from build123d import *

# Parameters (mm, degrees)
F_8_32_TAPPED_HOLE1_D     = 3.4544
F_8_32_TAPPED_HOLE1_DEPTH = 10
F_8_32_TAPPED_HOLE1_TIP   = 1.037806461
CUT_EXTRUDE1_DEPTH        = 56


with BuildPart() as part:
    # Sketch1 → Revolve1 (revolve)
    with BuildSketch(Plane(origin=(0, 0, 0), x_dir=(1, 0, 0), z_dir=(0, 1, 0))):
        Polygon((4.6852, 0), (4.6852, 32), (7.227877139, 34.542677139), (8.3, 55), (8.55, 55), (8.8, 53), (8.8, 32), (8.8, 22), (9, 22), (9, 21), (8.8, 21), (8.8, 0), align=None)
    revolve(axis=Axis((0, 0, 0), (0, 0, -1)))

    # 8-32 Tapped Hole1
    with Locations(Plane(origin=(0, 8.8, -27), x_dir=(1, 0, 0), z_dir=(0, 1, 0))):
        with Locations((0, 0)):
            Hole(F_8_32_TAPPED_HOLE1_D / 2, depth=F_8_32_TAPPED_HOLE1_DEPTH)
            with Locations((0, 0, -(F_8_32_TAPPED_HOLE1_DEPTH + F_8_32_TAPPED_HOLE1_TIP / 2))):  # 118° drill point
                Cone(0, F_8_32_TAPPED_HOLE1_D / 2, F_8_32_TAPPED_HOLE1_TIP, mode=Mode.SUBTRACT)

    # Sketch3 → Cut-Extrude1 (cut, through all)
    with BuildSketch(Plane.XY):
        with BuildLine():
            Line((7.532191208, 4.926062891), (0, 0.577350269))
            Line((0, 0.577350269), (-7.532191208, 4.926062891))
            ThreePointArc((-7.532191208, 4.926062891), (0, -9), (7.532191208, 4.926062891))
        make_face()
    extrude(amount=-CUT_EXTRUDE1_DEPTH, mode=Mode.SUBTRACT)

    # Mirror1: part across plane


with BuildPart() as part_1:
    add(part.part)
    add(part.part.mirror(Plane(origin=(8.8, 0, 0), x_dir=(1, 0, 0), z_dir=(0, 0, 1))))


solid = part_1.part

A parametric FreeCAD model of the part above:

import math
import FreeCAD as App
import Part
import Sketcher

V = App.Vector
Q = App.Units.Quantity

doc = App.newDocument("Part")
body = doc.addObject("PartDesign::Body", "Body")

sketch1 = doc.addObject("Sketcher::SketchObject", "Sketch")
body.addObject(sketch1)
sketch1.AttachmentSupport = (doc.XZ_Plane, [""])
sketch1.MapMode = "FlatFace"
sketch1.addGeometry([
    Part.LineSegment(V(4.6852, -32, 0), V(4.6852, 0, 0)),
    Part.LineSegment(V(4.6852, 0, 0), V(8.8, 0, 0)),
    Part.LineSegment(V(8.8, 0, 0), V(8.8, -21, 0)),
    Part.LineSegment(V(8.8, -21, 0), V(9, -21, 0)),
    Part.LineSegment(V(9, -21, 0), V(9, -22, 0)),
    Part.LineSegment(V(9, -22, 0), V(8.8, -22, 0)),
    Part.LineSegment(V(8.8, -22, 0), V(8.8, -53, 0)),
    Part.LineSegment(V(8.8, -53, 0), V(8.55, -55, 0)),
    Part.LineSegment(V(8.55, -55, 0), V(8.3, -55, 0)),
    Part.LineSegment(V(8.3, -55, 0), V(7.227877, -34.542677, 0)),
    Part.LineSegment(V(7.227877, -34.542677, 0), V(4.6852, -32, 0)),
], False)
sketch1.addConstraint([
    Sketcher.Constraint("Coincident", 0, 2, 1, 1),
    Sketcher.Constraint("Coincident", 1, 2, 2, 1),
    Sketcher.Constraint("Coincident", 2, 2, 3, 1),
    Sketcher.Constraint("Coincident", 3, 2, 4, 1),
    Sketcher.Constraint("Coincident", 4, 2, 5, 1),
    Sketcher.Constraint("Coincident", 5, 2, 6, 1),
    Sketcher.Constraint("Coincident", 6, 2, 7, 1),
    Sketcher.Constraint("Coincident", 7, 2, 8, 1),
    Sketcher.Constraint("Coincident", 8, 2, 9, 1),
    Sketcher.Constraint("Coincident", 9, 2, 10, 1),
    Sketcher.Constraint("Coincident", 10, 2, 0, 1),
    Sketcher.Constraint("Vertical", 0),
    Sketcher.Constraint("Horizontal", 1),
    Sketcher.Constraint("Vertical", 2),
    Sketcher.Constraint("Horizontal", 3),
    Sketcher.Constraint("Vertical", 4),
    Sketcher.Constraint("Horizontal", 5),
    Sketcher.Constraint("Vertical", 6),
    Sketcher.Constraint("Horizontal", 8),
    Sketcher.Constraint("PointOnObject", 0, 2, -1),
    Sketcher.Constraint("Vertical", 2, 2, 5, 2),
    Sketcher.Constraint("DistanceY", 0, 1, 0, 2, Q("32 mm")),
    Sketcher.Constraint("DistanceY", 2, 2, 2, 1, Q("21 mm")),
    Sketcher.Constraint("DistanceY", 4, 2, 4, 1, Q("1 mm")),
    Sketcher.Constraint("DistanceY", 6, 2, 6, 1, Q("31 mm")),
    Sketcher.Constraint("Angle", 9, Q("93 deg")),
    Sketcher.Constraint("Angle", 10, Q("135 deg")),
    Sketcher.Constraint("DistanceX", 3, 1, 3, 2, Q("0.2 mm")),
    Sketcher.Constraint("DistanceX", -1, 1, 3, 2, Q("9 mm")),
    Sketcher.Constraint("DistanceY", 7, 2, -1, 1, Q("55 mm")),
    Sketcher.Constraint("DistanceX", 8, 2, 8, 1, Q("0.25 mm")),
    Sketcher.Constraint("DistanceX", -1, 1, 8, 2, Q("8.3 mm")),
    Sketcher.Constraint("DistanceX", 1, 1, 1, 2, Q("4.1148 mm")),
])
revolution = doc.addObject("PartDesign::Revolution", "Revolution")
body.addObject(revolution)
revolution.Profile = sketch1
revolution.ReferenceAxis = (sketch1, ["V_Axis"])
revolution.Angle = 360

sketch2 = doc.addObject("Sketcher::SketchObject", "Sketch001")
body.addObject(sketch2)
sketch2.AttachmentSupport = (doc.XZ_Plane, [""])
sketch2.MapMode = "FlatFace"
sketch2.AttachmentOffset = App.Placement(V(0, 0, -8.8), App.Rotation())
sketch2.addGeometry(Part.Circle(V(0, -27, 0), V(0, 0, 1), 1.7272), False)
sketch2.addConstraint([
    Sketcher.Constraint("PointOnObject", 0, 3, -2),
    Sketcher.Constraint("DistanceY", 0, 3, -1, 1, Q("27 mm")),
    Sketcher.Constraint("Diameter", 0, Q("3.4544 mm")),
])
doc.recompute()
hole = doc.addObject("PartDesign::Hole", "Hole")
body.addObject(hole)
hole.Profile = sketch2
hole.ThreadType = "None"
hole.Diameter = 3.4544
hole.DepthType = "Dimension"
hole.Depth = 10
hole.DrillPoint = "Angled"
hole.DrillPointAngle = 118
hole.Reversed = True

sketch3 = doc.addObject("Sketcher::SketchObject", "Sketch002")
body.addObject(sketch3)
sketch3.AttachmentSupport = (doc.XY_Plane, [""])
sketch3.MapMode = "FlatFace"
sketch3.addGeometry([
    Part.LineSegment(V(7.532191, 4.926063, 0), V(0, 0.57735, 0)),
    Part.LineSegment(V(0, 0.57735, 0), V(-7.532191, 4.926063, 0)),
    Part.ArcOfCircle(Part.Circle(V(0, 0, 0), V(0, 0, 1), 9), math.radians(146.815261), math.radians(393.184739)),
], False)
sketch3.addConstraint([
    Sketcher.Constraint("Coincident", 0, 2, 1, 1),
    Sketcher.Constraint("Coincident", 1, 2, 2, 1),
    Sketcher.Constraint("Coincident", 2, 2, 0, 1),
    Sketcher.Constraint("Coincident", 2, 3, -1, 1),
    Sketcher.Constraint("PointOnObject", 0, 2, -2),
    Sketcher.Constraint("Horizontal", 1, 2, 2, 2),
    Sketcher.Constraint("Radius", 2, Q("9 mm")),
    Sketcher.Constraint("Angle", 0, Q("-150 deg")),
    Sketcher.Constraint("DistanceY", -1, 1, 0, 2, Q("0.57735 mm")),
])
pocket1 = doc.addObject("PartDesign::Pocket", "Pocket")
body.addObject(pocket1)
pocket1.Profile = sketch3
pocket1.Type = "ThroughAll"
body2 = doc.addObject("PartDesign::Body", "Body001")
doc.recompute()

body2.BaseFeature = body
doc.recompute()

mirroring = doc.addObject("Part::Mirroring", "Mirroring")
mirroring.Source = body
mirroring.Base = V(8.8, 0, 0)
mirroring.Normal = V(0, 0, 1)
body3 = doc.addObject("PartDesign::Body", "Body002")
body3.BaseFeature = mirroring
boolean = doc.addObject("PartDesign::Boolean", "Boolean")
body2.addObject(boolean)
boolean.Type = "Fuse"
boolean.addObjects([body3])
doc.recompute()
mirroring.Visibility = False

doc.recompute()
